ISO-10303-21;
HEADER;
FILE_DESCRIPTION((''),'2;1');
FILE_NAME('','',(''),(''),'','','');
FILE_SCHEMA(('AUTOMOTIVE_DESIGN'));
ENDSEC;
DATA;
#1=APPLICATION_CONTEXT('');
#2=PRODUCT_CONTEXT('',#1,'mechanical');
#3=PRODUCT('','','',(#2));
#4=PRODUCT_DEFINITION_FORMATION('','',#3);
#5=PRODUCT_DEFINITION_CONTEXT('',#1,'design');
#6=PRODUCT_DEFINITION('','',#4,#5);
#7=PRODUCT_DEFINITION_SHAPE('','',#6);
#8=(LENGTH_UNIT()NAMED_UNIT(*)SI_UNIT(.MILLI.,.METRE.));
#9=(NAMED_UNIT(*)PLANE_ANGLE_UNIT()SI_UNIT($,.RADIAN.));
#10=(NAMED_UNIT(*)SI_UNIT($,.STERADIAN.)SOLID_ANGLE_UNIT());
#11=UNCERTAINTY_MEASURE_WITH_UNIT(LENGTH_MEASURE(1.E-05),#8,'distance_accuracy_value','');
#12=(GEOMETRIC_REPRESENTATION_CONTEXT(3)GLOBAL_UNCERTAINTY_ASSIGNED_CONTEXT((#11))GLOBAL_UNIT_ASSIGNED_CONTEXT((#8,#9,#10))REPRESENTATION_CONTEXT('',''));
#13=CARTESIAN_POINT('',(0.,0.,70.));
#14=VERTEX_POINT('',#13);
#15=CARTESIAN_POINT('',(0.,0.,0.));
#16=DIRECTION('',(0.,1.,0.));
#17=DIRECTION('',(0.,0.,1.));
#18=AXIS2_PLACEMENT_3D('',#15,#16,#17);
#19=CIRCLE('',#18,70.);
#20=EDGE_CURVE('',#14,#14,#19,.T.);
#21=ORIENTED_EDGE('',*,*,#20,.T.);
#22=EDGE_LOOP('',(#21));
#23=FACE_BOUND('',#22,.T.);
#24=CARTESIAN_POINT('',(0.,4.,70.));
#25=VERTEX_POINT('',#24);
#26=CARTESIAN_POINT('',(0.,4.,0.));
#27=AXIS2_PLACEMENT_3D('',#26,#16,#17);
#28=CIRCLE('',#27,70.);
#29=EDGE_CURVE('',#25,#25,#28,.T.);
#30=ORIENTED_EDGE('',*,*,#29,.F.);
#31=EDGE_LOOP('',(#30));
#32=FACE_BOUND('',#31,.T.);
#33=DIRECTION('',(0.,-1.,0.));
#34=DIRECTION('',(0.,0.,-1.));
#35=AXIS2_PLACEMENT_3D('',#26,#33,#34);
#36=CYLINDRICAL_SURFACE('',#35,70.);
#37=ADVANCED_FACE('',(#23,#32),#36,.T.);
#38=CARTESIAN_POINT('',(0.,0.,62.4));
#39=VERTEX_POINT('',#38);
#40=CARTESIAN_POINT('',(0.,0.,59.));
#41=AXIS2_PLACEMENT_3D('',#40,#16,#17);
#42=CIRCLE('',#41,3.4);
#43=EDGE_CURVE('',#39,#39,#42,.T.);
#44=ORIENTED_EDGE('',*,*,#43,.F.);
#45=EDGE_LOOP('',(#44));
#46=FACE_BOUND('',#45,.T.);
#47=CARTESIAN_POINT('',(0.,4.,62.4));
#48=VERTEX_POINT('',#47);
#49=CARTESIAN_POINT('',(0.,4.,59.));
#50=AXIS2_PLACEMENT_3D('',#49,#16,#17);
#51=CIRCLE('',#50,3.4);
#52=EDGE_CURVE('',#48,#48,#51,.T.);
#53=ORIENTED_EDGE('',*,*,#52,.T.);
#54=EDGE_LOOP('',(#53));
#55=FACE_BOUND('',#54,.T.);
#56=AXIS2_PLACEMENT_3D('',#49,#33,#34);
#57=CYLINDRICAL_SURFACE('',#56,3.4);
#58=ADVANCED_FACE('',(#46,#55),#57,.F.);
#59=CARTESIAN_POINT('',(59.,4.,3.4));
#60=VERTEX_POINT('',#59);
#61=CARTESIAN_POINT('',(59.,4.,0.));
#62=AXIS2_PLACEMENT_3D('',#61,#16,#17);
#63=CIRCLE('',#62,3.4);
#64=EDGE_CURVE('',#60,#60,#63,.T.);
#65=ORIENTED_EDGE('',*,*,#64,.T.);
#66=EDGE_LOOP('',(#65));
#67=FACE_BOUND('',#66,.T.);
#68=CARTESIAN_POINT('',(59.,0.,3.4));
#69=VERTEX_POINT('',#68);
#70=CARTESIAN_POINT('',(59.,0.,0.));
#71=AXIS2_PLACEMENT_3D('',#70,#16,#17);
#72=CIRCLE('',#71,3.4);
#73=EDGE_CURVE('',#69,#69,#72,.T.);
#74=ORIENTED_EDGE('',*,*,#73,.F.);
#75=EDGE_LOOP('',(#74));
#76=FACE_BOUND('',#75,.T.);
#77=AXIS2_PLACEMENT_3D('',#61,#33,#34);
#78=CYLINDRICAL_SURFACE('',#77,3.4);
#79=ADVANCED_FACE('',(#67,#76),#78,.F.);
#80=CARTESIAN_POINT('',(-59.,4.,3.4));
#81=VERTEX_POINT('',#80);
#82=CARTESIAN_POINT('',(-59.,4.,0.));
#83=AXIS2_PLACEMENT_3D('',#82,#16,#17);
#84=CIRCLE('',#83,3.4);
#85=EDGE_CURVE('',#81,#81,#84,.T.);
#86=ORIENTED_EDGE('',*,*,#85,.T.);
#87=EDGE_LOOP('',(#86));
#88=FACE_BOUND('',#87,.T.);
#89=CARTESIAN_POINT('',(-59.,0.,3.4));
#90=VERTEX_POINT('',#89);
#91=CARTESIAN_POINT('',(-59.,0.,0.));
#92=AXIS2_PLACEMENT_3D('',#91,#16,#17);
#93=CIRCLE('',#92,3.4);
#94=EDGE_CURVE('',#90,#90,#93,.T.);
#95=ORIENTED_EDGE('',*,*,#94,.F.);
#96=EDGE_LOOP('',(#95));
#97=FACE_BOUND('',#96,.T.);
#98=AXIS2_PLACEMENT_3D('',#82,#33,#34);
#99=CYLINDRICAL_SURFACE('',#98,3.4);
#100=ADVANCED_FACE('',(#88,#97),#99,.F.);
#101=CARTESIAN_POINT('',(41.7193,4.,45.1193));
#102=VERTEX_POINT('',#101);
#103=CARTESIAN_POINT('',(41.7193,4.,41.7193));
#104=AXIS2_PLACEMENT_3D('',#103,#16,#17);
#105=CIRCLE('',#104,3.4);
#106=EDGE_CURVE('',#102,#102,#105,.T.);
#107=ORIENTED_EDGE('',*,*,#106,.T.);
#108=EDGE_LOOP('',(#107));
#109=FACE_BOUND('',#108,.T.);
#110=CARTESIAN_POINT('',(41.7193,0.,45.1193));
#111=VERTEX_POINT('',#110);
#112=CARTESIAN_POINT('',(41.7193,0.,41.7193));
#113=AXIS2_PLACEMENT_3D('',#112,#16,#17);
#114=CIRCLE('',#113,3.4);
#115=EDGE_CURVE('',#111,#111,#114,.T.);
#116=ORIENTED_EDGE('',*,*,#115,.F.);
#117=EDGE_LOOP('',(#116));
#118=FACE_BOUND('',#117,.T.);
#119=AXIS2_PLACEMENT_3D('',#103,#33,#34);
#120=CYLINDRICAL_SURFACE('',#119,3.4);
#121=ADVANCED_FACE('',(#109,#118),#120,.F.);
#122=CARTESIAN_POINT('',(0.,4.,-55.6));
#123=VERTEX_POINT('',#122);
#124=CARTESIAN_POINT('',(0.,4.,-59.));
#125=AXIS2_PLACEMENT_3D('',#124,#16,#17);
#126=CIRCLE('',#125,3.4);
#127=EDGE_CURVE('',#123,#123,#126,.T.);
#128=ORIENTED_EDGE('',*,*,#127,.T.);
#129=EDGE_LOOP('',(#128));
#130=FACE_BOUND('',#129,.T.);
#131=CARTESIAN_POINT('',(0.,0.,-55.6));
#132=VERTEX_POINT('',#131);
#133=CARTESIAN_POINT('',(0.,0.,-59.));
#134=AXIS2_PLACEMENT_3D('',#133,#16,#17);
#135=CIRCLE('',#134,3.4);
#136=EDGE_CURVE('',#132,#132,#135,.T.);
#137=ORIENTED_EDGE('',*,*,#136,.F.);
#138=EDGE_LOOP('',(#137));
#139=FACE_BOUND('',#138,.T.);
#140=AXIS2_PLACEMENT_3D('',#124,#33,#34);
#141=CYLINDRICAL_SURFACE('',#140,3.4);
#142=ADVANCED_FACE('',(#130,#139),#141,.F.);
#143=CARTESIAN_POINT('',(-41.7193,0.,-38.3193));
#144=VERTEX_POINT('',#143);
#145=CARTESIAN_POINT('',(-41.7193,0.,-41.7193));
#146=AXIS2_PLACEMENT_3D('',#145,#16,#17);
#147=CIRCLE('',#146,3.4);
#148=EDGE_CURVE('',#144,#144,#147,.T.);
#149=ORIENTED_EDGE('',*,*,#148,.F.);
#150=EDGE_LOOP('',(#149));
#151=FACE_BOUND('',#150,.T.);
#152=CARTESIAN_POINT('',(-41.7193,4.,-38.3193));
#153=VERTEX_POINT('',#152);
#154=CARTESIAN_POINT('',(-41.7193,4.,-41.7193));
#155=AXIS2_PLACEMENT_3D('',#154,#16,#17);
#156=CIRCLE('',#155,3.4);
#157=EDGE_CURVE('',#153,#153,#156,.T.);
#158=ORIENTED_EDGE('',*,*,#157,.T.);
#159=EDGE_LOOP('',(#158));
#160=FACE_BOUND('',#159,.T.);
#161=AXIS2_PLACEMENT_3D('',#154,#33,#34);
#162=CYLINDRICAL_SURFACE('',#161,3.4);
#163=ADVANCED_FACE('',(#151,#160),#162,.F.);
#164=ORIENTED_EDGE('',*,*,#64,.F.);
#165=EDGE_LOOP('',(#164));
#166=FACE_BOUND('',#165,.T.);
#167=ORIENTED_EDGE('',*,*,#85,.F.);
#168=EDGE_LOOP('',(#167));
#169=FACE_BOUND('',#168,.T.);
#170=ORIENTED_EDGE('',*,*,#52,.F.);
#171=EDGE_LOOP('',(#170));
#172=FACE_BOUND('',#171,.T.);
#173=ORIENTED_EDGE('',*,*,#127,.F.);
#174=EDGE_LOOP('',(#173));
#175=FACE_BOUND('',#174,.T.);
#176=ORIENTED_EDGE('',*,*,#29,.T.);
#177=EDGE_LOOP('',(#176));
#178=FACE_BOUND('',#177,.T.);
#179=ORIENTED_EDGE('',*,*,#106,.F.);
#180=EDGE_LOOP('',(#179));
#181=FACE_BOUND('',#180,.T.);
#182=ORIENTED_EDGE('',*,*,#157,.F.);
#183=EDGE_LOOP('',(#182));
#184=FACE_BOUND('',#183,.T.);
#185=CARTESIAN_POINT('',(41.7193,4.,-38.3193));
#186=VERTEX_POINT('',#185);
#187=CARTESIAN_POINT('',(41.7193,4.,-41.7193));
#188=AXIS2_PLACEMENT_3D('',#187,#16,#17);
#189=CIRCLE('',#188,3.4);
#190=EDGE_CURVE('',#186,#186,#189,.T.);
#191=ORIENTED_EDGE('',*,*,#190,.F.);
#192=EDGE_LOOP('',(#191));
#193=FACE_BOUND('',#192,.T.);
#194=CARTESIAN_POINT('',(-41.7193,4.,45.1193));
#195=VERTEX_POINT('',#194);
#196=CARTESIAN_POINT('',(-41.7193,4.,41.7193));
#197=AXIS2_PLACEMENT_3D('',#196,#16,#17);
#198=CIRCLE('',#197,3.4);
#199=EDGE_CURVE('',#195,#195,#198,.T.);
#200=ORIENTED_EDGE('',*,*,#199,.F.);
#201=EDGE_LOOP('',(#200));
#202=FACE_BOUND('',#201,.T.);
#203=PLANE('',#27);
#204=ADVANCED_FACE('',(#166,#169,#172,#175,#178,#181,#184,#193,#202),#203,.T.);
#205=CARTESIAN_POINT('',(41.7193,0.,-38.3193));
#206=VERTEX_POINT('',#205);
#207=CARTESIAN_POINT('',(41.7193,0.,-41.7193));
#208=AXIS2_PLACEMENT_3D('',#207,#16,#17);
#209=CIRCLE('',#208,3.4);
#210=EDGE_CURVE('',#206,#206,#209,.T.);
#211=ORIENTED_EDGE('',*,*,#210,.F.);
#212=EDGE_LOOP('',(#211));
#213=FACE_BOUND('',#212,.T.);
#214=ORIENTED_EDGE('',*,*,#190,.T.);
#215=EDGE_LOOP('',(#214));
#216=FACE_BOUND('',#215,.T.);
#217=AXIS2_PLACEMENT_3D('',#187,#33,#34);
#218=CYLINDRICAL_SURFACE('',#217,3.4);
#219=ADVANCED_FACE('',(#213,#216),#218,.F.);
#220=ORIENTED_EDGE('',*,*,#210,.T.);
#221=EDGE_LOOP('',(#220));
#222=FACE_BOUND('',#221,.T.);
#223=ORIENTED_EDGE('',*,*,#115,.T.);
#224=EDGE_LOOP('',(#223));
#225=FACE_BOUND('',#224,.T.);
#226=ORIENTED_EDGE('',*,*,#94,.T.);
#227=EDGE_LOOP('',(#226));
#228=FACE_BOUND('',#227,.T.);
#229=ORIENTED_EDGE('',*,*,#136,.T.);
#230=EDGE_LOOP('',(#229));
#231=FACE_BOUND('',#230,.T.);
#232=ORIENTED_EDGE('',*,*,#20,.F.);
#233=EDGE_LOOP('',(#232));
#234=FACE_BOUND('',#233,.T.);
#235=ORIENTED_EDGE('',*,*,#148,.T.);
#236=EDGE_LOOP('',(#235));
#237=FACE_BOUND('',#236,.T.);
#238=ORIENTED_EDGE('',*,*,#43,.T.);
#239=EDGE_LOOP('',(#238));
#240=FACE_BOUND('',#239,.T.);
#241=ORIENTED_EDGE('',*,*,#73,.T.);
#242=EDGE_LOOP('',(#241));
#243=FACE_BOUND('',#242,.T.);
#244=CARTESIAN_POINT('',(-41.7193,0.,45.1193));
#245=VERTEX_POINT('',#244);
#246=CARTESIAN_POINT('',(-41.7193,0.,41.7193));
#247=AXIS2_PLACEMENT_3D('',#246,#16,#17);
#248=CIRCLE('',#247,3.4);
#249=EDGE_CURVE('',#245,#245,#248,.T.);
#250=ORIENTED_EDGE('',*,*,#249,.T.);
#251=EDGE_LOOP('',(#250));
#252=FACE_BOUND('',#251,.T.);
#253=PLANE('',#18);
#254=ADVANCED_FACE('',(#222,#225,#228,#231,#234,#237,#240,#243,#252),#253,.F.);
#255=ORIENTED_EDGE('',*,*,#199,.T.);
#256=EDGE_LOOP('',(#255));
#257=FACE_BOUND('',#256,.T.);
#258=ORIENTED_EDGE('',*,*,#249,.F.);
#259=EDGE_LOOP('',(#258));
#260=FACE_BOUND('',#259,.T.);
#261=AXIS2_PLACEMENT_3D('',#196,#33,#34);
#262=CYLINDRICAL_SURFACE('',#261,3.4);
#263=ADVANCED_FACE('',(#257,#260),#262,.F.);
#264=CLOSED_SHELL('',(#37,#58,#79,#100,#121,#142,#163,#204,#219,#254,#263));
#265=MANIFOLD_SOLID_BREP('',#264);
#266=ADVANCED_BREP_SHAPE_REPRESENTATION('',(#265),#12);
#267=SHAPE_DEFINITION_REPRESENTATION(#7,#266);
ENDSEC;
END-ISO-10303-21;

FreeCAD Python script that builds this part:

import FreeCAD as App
import Part
import Sketcher
from FreeCAD import Vector

doc = App.newDocument("Part")
body = doc.addObject("PartDesign::Body", "Body")

sketch1 = doc.addObject("Sketcher::SketchObject", "Sketch")
body.addObject(sketch1)
sketch1.AttachmentSupport = (doc.XZ_Plane, [""])
sketch1.MapMode = "FlatFace"
sketch1.addGeometry([
    Part.Circle(Vector(0, 0, 0), Vector(0, 0, 1), 70),
    Part.Circle(Vector(-41.7193, -41.7193, 0), Vector(0, 0, 1), 3.4),
    Part.Circle(Vector(-59, 0, 0), Vector(0, 0, 1), 3.4),
    Part.Circle(Vector(-41.7193, 41.7193, 0), Vector(0, 0, 1), 3.4),
    Part.Circle(Vector(0, -59, 0), Vector(0, 0, 1), 3.4),
    Part.Circle(Vector(41.7193, -41.7193, 0), Vector(0, 0, 1), 3.4),
    Part.Circle(Vector(0, 59, 0), Vector(0, 0, 1), 3.4),
    Part.Circle(Vector(59, 0, 0), Vector(0, 0, 1), 3.4),
    Part.Circle(Vector(41.7193, 41.7193, 0), Vector(0, 0, 1), 3.4),
], False)
sketch1.addConstraint([
    Sketcher.Constraint("Coincident", 0, 3, -1, 1),
    Sketcher.Constraint("Equal", 1, 2),
    Sketcher.Constraint("Equal", 2, 3),
    Sketcher.Constraint("Equal", 3, 4),
    Sketcher.Constraint("Equal", 4, 5),
    Sketcher.Constraint("Equal", 5, 6),
    Sketcher.Constraint("Equal", 6, 7),
    Sketcher.Constraint("Equal", 7, 8),
    Sketcher.Constraint("Symmetric", 3, 3, 5, 3, -1, 1),
    Sketcher.Constraint("Symmetric", 4, 3, 6, 3, -1, 1),
    Sketcher.Constraint("Symmetric", 2, 3, 7, 3, -1, 1),
    Sketcher.Constraint("Symmetric", 1, 3, 8, 3, -1, 1),
    Sketcher.Constraint("Symmetric", 1, 3, 5, 3, -2),
    Sketcher.Constraint("PointOnObject", 2, 3, -1),
    Sketcher.Constraint("PointOnObject", 4, 3, -2),
    Sketcher.Constraint("Diameter", 0, 140.0),
    Sketcher.Constraint("Diameter", 1, 6.8),
    Sketcher.Constraint("DistanceX", 2, 3, -1, 1, 59.0),
    Sketcher.Constraint("DistanceY", 4, 3, -1, 1, 59.0),
    Sketcher.Constraint("DistanceX", 1, 3, -1, 1, 41.7193),
    Sketcher.Constraint("DistanceY", 1, 3, -1, 1, 41.7193),
])
pad1 = doc.addObject("PartDesign::Pad", "Pad")
body.addObject(pad1)
pad1.Profile = sketch1
pad1.Length = 4
pad1.Reversed = True

doc.recompute()
